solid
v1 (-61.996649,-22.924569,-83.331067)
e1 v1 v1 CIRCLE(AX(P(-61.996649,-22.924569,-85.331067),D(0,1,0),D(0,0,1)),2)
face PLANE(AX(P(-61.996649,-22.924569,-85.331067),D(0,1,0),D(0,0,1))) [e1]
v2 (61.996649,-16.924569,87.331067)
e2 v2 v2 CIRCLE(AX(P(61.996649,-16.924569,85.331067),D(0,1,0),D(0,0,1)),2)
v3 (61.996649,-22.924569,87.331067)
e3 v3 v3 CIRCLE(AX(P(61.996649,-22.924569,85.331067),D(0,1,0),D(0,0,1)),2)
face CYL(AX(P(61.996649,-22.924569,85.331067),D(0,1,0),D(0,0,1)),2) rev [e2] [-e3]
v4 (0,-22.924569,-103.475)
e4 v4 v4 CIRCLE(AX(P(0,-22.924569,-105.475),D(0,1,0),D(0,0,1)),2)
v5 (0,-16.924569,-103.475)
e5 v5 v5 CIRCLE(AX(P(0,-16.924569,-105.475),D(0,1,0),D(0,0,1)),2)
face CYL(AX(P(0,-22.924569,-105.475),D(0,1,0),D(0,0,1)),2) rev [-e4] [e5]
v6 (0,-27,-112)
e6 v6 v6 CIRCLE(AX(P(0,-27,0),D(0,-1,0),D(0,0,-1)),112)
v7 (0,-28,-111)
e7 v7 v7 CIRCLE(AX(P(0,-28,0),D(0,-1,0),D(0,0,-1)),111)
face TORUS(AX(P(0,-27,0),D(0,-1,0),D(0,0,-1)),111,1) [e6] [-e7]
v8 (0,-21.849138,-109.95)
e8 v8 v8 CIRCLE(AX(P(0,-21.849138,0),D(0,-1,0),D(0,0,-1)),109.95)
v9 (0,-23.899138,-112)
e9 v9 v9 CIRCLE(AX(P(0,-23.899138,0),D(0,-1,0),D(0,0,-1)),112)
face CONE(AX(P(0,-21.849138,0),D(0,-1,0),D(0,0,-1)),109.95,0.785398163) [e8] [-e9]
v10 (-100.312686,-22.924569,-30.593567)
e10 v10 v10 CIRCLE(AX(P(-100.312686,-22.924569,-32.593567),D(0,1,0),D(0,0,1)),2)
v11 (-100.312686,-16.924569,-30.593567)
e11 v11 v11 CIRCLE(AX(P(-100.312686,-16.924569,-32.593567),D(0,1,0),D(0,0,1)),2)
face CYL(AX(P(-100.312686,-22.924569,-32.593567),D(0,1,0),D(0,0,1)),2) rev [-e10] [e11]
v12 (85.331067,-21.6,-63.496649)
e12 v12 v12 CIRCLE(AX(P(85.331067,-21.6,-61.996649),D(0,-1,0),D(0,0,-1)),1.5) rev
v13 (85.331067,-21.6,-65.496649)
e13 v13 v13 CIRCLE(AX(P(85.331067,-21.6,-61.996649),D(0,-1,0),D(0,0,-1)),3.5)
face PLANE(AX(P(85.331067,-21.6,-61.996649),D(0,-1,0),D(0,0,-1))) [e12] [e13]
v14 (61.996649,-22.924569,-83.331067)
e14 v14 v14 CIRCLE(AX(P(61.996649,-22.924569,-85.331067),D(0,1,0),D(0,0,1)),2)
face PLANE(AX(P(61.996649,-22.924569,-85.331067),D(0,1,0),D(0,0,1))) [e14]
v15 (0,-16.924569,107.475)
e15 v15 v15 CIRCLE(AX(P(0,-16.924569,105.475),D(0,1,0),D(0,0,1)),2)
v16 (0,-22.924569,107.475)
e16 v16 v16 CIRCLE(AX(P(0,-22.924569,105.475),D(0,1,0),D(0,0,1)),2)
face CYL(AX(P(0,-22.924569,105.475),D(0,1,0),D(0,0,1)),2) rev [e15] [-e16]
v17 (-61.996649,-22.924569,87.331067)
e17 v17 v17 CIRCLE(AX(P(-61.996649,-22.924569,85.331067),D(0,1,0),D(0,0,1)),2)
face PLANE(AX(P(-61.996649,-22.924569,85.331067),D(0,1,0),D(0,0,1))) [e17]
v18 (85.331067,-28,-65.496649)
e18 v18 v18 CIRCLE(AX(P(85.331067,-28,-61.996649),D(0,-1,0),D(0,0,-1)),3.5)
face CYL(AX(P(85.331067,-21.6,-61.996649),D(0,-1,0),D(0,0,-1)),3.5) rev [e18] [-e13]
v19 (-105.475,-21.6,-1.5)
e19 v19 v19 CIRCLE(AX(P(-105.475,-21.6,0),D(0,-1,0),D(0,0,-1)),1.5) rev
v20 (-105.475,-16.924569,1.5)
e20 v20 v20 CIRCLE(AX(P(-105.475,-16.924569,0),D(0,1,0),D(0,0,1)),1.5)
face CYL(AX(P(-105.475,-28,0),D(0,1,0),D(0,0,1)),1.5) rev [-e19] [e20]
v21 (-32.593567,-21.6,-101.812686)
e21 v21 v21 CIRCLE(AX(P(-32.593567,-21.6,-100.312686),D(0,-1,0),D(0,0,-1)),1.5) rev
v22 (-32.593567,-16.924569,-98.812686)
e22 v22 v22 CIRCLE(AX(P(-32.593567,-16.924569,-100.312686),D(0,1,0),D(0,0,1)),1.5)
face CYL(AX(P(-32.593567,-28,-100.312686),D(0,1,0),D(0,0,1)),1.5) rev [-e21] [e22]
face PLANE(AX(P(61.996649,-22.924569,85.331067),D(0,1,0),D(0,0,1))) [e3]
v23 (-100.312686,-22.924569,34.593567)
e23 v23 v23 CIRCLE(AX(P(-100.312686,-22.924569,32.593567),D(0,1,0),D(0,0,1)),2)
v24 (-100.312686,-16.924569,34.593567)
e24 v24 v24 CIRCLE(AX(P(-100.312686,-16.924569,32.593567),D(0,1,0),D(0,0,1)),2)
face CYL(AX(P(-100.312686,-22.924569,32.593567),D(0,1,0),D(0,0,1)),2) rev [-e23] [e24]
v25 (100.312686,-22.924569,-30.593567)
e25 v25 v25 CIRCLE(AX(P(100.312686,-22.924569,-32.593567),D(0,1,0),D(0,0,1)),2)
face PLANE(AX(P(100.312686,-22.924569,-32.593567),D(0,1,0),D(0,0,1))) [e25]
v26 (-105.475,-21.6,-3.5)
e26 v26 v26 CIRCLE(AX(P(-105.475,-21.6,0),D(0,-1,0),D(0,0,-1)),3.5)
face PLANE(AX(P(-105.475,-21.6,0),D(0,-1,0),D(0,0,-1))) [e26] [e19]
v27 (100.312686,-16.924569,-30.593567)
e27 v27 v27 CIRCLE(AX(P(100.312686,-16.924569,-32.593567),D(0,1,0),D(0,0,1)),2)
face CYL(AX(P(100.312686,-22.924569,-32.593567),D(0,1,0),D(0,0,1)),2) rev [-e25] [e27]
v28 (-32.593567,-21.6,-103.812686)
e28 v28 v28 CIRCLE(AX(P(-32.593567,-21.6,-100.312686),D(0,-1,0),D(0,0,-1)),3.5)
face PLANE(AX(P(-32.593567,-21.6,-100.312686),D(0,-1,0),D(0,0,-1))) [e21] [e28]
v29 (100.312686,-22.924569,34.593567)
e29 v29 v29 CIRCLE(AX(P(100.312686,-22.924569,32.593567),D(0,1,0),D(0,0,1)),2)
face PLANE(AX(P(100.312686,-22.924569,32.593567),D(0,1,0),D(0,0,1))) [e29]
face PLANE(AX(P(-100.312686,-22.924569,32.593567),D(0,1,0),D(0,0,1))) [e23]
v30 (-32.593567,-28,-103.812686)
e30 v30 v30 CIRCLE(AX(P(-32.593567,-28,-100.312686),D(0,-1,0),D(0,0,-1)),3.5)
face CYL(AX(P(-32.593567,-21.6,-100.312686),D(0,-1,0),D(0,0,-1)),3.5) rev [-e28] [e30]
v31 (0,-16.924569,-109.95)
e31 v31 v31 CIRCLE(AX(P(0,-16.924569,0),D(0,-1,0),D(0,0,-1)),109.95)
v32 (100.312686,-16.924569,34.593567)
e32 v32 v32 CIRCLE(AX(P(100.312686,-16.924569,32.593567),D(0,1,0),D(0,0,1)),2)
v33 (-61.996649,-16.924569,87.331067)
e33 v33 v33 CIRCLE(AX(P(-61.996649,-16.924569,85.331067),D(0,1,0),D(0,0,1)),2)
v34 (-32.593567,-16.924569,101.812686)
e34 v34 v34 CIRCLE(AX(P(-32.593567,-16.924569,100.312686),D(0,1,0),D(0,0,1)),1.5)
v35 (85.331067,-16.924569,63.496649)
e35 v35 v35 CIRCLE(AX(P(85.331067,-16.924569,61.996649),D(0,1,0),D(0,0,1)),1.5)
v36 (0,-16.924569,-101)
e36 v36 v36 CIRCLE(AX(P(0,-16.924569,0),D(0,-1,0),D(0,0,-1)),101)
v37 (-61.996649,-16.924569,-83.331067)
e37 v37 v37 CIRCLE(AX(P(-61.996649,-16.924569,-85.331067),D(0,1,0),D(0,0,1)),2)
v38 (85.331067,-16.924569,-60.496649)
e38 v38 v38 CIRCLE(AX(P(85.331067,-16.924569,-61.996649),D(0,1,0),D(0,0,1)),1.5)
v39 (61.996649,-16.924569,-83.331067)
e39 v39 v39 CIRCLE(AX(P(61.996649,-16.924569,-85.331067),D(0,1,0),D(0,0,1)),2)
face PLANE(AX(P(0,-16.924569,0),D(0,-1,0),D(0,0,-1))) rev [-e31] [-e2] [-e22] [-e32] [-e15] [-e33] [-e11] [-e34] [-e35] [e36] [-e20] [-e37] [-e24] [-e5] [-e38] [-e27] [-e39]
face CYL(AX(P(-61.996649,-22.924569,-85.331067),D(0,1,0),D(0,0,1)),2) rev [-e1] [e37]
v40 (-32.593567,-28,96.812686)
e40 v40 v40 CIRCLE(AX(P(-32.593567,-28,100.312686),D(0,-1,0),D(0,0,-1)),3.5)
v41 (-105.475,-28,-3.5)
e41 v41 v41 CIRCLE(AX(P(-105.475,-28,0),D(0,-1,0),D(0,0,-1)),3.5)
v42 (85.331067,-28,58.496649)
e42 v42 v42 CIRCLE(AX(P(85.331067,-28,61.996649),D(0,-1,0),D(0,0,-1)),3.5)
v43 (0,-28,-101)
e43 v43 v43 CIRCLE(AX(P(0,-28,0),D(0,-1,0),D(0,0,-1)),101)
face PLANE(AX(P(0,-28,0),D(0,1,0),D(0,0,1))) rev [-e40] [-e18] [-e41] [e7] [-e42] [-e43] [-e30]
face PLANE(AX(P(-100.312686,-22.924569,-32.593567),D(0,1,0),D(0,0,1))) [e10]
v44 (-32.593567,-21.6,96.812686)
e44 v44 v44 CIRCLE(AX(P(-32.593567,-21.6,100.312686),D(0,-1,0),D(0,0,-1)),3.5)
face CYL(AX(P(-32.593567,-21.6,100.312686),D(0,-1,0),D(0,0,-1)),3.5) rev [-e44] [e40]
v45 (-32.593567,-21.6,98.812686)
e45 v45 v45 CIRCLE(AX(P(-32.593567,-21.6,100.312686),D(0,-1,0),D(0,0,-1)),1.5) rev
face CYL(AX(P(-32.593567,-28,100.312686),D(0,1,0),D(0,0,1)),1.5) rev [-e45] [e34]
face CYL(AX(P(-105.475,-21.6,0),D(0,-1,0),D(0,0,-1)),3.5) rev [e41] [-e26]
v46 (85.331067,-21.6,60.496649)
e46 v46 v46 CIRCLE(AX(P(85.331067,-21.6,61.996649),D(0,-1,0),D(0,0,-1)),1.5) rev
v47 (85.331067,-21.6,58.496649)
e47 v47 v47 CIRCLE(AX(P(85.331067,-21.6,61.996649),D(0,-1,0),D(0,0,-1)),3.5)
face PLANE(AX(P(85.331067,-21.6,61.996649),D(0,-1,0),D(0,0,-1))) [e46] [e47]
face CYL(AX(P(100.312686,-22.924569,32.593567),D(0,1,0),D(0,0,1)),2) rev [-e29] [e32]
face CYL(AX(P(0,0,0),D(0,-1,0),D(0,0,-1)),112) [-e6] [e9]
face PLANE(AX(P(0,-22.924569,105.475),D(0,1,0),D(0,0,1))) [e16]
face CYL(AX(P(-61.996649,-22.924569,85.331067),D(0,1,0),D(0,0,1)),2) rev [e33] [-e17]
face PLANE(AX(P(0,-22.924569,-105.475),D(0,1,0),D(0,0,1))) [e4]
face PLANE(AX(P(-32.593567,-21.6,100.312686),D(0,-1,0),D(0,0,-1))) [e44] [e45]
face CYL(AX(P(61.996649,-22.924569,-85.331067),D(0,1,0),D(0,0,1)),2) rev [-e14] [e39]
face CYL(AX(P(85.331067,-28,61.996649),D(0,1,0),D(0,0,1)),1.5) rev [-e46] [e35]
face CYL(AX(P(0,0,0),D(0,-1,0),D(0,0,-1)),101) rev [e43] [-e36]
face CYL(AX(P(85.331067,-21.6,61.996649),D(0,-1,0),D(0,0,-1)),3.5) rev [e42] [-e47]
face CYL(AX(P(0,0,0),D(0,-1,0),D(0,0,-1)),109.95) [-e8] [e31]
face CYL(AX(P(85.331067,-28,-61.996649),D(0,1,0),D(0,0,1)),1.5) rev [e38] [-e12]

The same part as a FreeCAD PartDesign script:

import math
import FreeCAD as App
import Part
import Sketcher

V = App.Vector
Q = App.Units.Quantity

doc = App.newDocument("Part")
params = doc.addObject("Spreadsheet::Sheet", "Params")
for row, (alias, value) in enumerate([
    ("sketch1_radius", "1 mm"),
    ("sketch1_width", "10 mm"),
    ("sketch1_width2", "8.95 mm"),
    ("revolution_angle", "360 deg"),
    ("sketch2_diameter", "4 mm"),
    ("pocket1_length", "6 mm"),
    ("sketch3_diameter", "3 mm"),
    ("sketch4_diameter", "7 mm"),
    ("pocket3_length", "6.4 mm"),
], start=1):
    params.set(f"A{row}", alias)
    params.set(f"B{row}", "=" + value)
    params.setAlias(f"B{row}", alias)

body = doc.addObject("PartDesign::Body", "Body")

sketch1 = body.newObject("Sketcher::SketchObject", "Sketch")
sketch1.AttachmentSupport = (doc.getObject("XY_Plane"), [""])
sketch1.MapMode = "FlatFace"
sketch1.addGeometry([
    Part.LineSegment(V(-111, -28, 0), V(-101, -28, 0)),
    Part.LineSegment(V(-101, -28, 0), V(-101, -16.9, 0)),
    Part.LineSegment(V(-101, -16.9, 0), V(-110, -16.9, 0)),
    Part.LineSegment(V(-110, -16.9, 0), V(-110, -21.8, 0)),
    Part.LineSegment(V(-110, -21.8, 0), V(-112, -23.9, 0)),
    Part.LineSegment(V(-112, -23.9, 0), V(-112, -27, 0)),
    Part.ArcOfCircle(Part.Circle(V(-111, -27, 0), V(0, 0, 1), 1), math.radians(-180), math.radians(-90)),
], False)
sketch1.addConstraint([
    Sketcher.Constraint("Coincident", 0, 2, 1, 1),
    Sketcher.Constraint("Coincident", 1, 2, 2, 1),
    Sketcher.Constraint("Coincident", 2, 2, 3, 1),
    Sketcher.Constraint("Coincident", 3, 2, 4, 1),
    Sketcher.Constraint("Coincident", 4, 2, 5, 1),
    Sketcher.Constraint("Tangent", 5, 2, 6, 1),
    Sketcher.Constraint("Tangent", 6, 2, 0, 1),
    Sketcher.Constraint("Horizontal", 0),
    Sketcher.Constraint("Vertical", 1),
    Sketcher.Constraint("Horizontal", 2),
    Sketcher.Constraint("Vertical", 3),
    Sketcher.Constraint("Vertical", 5),
    Sketcher.Constraint("Radius", 6, Q("1 mm")),
    Sketcher.Constraint("DistanceX", 0, 1, 0, 2, Q("10 mm")),
    Sketcher.Constraint("Angle", 4, Q("-135 deg")),
    Sketcher.Constraint("DistanceX", 6, 3, -1, 1, Q("111 mm")),
    Sketcher.Constraint("DistanceY", 6, 3, -1, 1, Q("27 mm")),
    Sketcher.Constraint("DistanceX", 2, 2, 2, 1, Q("8.95 mm")),
    Sketcher.Constraint("DistanceY", 1, 1, 1, 2, Q("11.075431 mm")),
    Sketcher.Constraint("DistanceY", 3, 2, 3, 1, Q("4.924569 mm")),
])
sketch1.setExpression("Constraints[12]", "Params.sketch1_radius")
sketch1.setExpression("Constraints[13]", "Params.sketch1_width")
sketch1.setExpression("Constraints[17]", "Params.sketch1_width2")
revolution = body.newObject("PartDesign::Revolution", "Revolution")
revolution.Profile = sketch1
revolution.ReferenceAxis = (sketch1, ["V_Axis"])
revolution.setExpression("Angle", "Params.revolution_angle")

sketch2 = body.newObject("Sketcher::SketchObject", "Sketch001")
sketch2.AttachmentSupport = (doc.getObject("XZ_Plane"), [""])
sketch2.MapMode = "FlatFace"
sketch2.AttachmentOffset = App.Placement(V(0, 0, 16.924569), App.Rotation())
sketch2.addGeometry([
    Part.Circle(V(0, -105.5, 0), V(0, 0, 1), 2),
    Part.Circle(V(62, -85.3, 0), V(0, 0, 1), 2),
    Part.Circle(V(100.3, -32.6, 0), V(0, 0, 1), 2),
    Part.Circle(V(100.3, 32.6, 0), V(0, 0, 1), 2),
    Part.Circle(V(62, 85.3, 0), V(0, 0, 1), 2),
    Part.Circle(V(0, 105.5, 0), V(0, 0, 1), 2),
    Part.Circle(V(-62, 85.3, 0), V(0, 0, 1), 2),
    Part.Circle(V(-100.3, 32.6, 0), V(0, 0, 1), 2),
    Part.Circle(V(-100.3, -32.6, 0), V(0, 0, 1), 2),
    Part.Circle(V(-62, -85.3, 0), V(0, 0, 1), 2),
], False)
sketch2.addConstraint([
    Sketcher.Constraint("Equal", 0, 1),
    Sketcher.Constraint("Equal", 1, 2),
    Sketcher.Constraint("Equal", 2, 3),
    Sketcher.Constraint("Equal", 3, 4),
    Sketcher.Constraint("Equal", 4, 5),
    Sketcher.Constraint("Equal", 5, 6),
    Sketcher.Constraint("Equal", 6, 7),
    Sketcher.Constraint("Equal", 7, 8),
    Sketcher.Constraint("Equal", 8, 9),
    Sketcher.Constraint("Symmetric", 0, 3, 5, 3, -1, 1),
    Sketcher.Constraint("Symmetric", 1, 3, 6, 3, -1, 1),
    Sketcher.Constraint("Symmetric", 2, 3, 7, 3, -1, 1),
    Sketcher.Constraint("Symmetric", 3, 3, 8, 3, -1, 1),
    Sketcher.Constraint("Symmetric", 4, 3, 9, 3, -1, 1),
    Sketcher.Constraint("Symmetric", 4, 3, 6, 3, -2),
    Sketcher.Constraint("Symmetric", 3, 3, 7, 3, -2),
    Sketcher.Constraint("PointOnObject", 0, 3, -2),
    Sketcher.Constraint("Diameter", 0, Q("4 mm")),
    Sketcher.Constraint("DistanceY", 0, 3, 5, 3, Q("210.95 mm")),
    Sketcher.Constraint("DistanceY", 1, 3, 2, 3, Q("52.7375 mm")),
    Sketcher.Constraint("DistanceX", 6, 3, 4, 3, Q("123.993299 mm")),
    Sketcher.Constraint("DistanceY", 1, 3, -1, 1, Q("85.331067 mm")),
    Sketcher.Constraint("DistanceX", -1, 1, 2, 3, Q("100.312686 mm")),
])
sketch2.setExpression("Constraints[17]", "Params.sketch2_diameter")
pocket1 = body.newObject("PartDesign::Pocket", "Pocket")
pocket1.Profile = sketch2
pocket1.setExpression("Length", "Params.pocket1_length")
pocket1.Reversed = True

sketch3 = body.newObject("Sketcher::SketchObject", "Sketch002")
sketch3.AttachmentSupport = (doc.getObject("XZ_Plane"), [""])
sketch3.MapMode = "FlatFace"
sketch3.AttachmentOffset = App.Placement(V(0, 0, 16.924569), App.Rotation())
sketch3.addGeometry([
    Part.Circle(V(-105.5, 0, 0), V(0, 0, 1), 1.5),
    Part.Circle(V(-32.6, -100.3, 0), V(0, 0, 1), 1.5),
    Part.Circle(V(85.3, -62, 0), V(0, 0, 1), 1.5),
    Part.Circle(V(85.3, 62, 0), V(0, 0, 1), 1.5),
    Part.Circle(V(-32.6, 100.3, 0), V(0, 0, 1), 1.5),
], False)
sketch3.addConstraint([
    Sketcher.Constraint("Equal", 0, 1),
    Sketcher.Constraint("Equal", 1, 2),
    Sketcher.Constraint("Equal", 2, 3),
    Sketcher.Constraint("Equal", 3, 4),
    Sketcher.Constraint("Symmetric", 2, 3, 3, 3, -1),
    Sketcher.Constraint("Symmetric", 1, 3, 4, 3, -1),
    Sketcher.Constraint("PointOnObject", 0, 3, -1),
    Sketcher.Constraint("Diameter", 0, Q("3 mm")),
    Sketcher.Constraint("DistanceX", 0, 3, -1, 1, Q("105.475 mm")),
    Sketcher.Constraint("DistanceY", 2, 3, 3, 3, Q("123.993299 mm")),
    Sketcher.Constraint("DistanceX", 1, 3, -1, 1, Q("32.593567 mm")),
    Sketcher.Constraint("DistanceY", 1, 3, -1, 1, Q("100.312686 mm")),
    Sketcher.Constraint("DistanceX", -1, 1, 2, 3, Q("85.331067 mm")),
])
sketch3.setExpression("Constraints[7]", "Params.sketch3_diameter")
pocket2 = body.newObject("PartDesign::Pocket", "Pocket001")
pocket2.Profile = sketch3
pocket2.Type = "ThroughAll"
pocket2.Reversed = True

sketch4 = body.newObject("Sketcher::SketchObject", "Sketch003")
sketch4.AttachmentSupport = (doc.getObject("XZ_Plane"), [""])
sketch4.MapMode = "FlatFace"
sketch4.AttachmentOffset = App.Placement(V(0, 0, 28), App.Rotation())
sketch4.addGeometry([
    Part.Circle(V(-105.5, 0, 0), V(0, 0, 1), 3.5),
    Part.Circle(V(-32.6, 100.3, 0), V(0, 0, 1), 3.5),
    Part.Circle(V(85.3, 62, 0), V(0, 0, 1), 3.5),
    Part.Circle(V(85.3, -62, 0), V(0, 0, 1), 3.5),
    Part.Circle(V(-32.6, -100.3, 0), V(0, 0, 1), 3.5),
], False)
sketch4.addConstraint([
    Sketcher.Constraint("Equal", 0, 1),
    Sketcher.Constraint("Equal", 1, 2),
    Sketcher.Constraint("Equal", 2, 3),
    Sketcher.Constraint("Equal", 3, 4),
    Sketcher.Constraint("Symmetric", 2, 3, 3, 3, -1),
    Sketcher.Constraint("Symmetric", 1, 3, 4, 3, -1),
    Sketcher.Constraint("PointOnObject", 0, 3, -1),
    Sketcher.Constraint("Diameter", 0, Q("7 mm")),
    Sketcher.Constraint("DistanceX", 0, 3, -1, 1, Q("105.475 mm")),
    Sketcher.Constraint("DistanceY", 3, 3, 2, 3, Q("123.993299 mm")),
    Sketcher.Constraint("DistanceX", 1, 3, -1, 1, Q("32.593567 mm")),
    Sketcher.Constraint("DistanceY", -1, 1, 1, 3, Q("100.312686 mm")),
    Sketcher.Constraint("DistanceX", -1, 1, 2, 3, Q("85.331067 mm")),
])
sketch4.setExpression("Constraints[7]", "Params.sketch4_diameter")
pocket3 = body.newObject("PartDesign::Pocket", "Pocket002")
pocket3.Profile = sketch4
pocket3.setExpression("Length", "Params.pocket3_length")

doc.recompute()
